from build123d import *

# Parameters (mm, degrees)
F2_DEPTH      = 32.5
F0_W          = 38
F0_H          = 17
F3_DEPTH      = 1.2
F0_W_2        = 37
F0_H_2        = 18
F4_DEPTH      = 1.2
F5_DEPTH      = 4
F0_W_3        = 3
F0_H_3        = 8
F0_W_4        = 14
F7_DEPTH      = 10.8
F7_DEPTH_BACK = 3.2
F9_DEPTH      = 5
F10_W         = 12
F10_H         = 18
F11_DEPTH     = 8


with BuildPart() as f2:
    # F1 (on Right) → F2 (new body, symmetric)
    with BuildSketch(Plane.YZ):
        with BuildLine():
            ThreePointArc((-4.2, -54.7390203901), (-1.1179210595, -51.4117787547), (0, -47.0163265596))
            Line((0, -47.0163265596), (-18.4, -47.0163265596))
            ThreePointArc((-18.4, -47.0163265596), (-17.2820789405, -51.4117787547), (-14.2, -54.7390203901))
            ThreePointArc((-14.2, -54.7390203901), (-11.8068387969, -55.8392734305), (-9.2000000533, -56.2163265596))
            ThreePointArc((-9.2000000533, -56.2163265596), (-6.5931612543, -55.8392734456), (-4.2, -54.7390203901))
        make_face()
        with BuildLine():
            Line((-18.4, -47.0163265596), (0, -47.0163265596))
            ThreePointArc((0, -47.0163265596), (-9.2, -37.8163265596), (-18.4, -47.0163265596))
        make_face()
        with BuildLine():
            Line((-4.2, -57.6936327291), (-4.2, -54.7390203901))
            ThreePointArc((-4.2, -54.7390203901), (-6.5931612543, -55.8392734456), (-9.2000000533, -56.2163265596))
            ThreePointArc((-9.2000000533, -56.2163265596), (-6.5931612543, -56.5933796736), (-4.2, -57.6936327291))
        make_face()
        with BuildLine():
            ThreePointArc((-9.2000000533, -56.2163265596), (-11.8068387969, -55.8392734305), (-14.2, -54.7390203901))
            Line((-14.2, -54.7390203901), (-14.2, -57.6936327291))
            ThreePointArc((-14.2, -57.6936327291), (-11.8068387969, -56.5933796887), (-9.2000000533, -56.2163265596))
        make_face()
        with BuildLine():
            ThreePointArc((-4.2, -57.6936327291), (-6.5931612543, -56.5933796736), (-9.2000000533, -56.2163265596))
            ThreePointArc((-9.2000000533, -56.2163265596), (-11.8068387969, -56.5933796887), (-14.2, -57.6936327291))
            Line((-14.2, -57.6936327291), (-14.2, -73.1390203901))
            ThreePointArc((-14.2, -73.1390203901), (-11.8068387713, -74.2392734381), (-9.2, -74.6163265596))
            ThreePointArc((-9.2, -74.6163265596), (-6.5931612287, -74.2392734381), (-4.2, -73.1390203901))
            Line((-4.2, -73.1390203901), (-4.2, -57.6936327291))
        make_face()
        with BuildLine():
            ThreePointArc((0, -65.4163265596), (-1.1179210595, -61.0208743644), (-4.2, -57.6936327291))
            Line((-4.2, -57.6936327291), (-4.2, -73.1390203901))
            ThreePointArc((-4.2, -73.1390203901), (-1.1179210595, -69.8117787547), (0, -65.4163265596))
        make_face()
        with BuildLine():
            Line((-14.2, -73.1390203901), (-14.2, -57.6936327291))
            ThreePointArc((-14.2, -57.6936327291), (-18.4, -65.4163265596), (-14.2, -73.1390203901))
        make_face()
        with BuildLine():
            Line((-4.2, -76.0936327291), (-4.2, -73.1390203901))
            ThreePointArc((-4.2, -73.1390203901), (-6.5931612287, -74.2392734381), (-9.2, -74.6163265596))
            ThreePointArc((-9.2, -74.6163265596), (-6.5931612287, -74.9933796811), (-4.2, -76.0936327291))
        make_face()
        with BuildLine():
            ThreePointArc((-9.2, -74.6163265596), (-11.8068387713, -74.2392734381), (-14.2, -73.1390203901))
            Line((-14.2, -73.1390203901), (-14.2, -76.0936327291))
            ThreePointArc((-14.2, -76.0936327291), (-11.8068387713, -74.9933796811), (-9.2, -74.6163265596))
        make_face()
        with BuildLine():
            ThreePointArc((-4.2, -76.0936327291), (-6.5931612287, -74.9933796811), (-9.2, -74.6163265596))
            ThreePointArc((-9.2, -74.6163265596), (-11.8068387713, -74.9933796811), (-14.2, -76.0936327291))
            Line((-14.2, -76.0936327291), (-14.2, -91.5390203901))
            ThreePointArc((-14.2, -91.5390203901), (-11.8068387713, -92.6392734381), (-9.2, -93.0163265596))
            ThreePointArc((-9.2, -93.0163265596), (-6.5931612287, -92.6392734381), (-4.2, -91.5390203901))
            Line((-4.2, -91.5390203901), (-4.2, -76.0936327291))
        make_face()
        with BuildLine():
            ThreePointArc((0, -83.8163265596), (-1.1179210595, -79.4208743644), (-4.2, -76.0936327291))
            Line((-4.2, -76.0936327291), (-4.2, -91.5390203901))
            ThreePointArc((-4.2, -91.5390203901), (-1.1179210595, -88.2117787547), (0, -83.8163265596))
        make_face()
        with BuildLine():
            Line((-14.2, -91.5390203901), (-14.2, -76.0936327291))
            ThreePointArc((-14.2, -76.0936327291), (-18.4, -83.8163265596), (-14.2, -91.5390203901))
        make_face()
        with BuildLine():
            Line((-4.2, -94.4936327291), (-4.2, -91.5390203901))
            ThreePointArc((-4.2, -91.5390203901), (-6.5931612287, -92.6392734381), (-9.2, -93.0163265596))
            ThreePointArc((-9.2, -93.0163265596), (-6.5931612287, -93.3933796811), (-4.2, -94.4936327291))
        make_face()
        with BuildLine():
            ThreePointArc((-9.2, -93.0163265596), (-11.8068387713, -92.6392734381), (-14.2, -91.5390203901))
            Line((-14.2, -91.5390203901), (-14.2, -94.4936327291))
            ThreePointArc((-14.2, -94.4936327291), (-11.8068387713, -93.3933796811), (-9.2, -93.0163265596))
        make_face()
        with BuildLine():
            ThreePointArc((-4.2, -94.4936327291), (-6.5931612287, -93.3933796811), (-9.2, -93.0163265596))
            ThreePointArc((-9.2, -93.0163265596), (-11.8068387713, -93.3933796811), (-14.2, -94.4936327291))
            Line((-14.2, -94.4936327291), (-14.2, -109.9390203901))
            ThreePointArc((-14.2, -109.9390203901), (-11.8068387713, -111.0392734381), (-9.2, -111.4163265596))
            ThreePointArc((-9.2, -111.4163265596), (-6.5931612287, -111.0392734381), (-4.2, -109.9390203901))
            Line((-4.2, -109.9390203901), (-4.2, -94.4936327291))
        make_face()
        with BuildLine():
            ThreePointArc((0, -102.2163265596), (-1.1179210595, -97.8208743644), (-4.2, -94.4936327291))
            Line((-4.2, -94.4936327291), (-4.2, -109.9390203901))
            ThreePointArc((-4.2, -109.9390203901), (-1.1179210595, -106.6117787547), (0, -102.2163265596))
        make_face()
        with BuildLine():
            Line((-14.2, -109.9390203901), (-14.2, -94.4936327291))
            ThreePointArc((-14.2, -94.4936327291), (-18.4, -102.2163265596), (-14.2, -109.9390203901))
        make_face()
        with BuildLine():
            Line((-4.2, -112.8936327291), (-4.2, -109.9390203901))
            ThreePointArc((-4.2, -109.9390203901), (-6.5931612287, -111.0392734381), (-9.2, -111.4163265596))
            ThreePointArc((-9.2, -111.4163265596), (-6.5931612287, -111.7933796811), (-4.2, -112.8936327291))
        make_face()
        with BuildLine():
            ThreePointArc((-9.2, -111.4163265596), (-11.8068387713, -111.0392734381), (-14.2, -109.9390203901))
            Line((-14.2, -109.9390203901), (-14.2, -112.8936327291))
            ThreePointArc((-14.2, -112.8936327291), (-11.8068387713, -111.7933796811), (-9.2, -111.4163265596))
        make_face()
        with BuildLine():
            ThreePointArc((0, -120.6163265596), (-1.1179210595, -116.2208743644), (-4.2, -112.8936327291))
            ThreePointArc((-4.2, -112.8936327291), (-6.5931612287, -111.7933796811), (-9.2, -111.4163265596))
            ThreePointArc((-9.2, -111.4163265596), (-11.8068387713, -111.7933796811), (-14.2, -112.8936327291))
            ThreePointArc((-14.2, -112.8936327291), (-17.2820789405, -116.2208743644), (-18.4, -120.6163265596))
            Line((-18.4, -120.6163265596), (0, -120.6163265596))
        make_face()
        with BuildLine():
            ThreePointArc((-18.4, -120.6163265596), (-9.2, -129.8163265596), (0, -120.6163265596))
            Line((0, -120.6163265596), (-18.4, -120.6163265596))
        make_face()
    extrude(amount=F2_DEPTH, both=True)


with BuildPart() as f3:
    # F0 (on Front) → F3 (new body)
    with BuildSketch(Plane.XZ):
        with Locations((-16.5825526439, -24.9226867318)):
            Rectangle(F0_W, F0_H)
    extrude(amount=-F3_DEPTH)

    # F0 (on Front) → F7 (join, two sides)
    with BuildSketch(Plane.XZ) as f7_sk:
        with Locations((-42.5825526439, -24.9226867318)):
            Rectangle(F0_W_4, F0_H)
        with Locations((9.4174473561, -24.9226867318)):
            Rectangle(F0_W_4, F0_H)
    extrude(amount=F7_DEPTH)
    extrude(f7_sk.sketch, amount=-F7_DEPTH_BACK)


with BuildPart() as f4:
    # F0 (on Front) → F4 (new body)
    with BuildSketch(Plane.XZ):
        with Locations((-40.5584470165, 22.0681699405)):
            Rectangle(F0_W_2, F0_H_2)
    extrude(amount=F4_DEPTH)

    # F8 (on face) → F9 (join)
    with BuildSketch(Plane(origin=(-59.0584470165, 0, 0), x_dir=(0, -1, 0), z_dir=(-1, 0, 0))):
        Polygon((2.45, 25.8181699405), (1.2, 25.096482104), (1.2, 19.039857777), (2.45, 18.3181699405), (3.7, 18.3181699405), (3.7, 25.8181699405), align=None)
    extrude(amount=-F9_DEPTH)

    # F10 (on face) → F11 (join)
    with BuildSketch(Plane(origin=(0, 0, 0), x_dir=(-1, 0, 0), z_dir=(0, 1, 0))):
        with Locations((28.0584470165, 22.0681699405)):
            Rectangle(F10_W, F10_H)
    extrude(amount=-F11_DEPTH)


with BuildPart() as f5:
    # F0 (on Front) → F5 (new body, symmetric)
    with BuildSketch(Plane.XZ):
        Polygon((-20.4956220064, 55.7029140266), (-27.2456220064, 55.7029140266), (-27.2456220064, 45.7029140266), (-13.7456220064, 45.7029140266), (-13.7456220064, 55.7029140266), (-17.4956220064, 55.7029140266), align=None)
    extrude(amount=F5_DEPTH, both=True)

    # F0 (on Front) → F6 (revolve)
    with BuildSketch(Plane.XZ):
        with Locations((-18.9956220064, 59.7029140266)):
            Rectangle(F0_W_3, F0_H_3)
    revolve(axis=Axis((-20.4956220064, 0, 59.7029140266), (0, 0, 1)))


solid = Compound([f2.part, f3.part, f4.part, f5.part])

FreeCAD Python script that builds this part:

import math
import FreeCAD as App
import Part
import Sketcher
Q = App.Units.Quantity

doc = App.newDocument("Part")
body = doc.addObject("PartDesign::Body", "Body")

sketch1 = doc.addObject("Sketcher::SketchObject", "Sketch")
body.addObject(sketch1)
sketch1.AttachmentSupport = (doc.YZ_Plane, [""])
sketch1.MapMode = "FlatFace"
sketch1.addGeometry(Part.ArcOfCircle(Part.Circle(App.Vector(-9.2, -47, 0), App.Vector(0, 0, 1), 9.2), math.radians(-57), math.radians(237)), False)
sketch1.addGeometry(Part.LineSegment(App.Vector(-14.2, -54.7, 0), App.Vector(-14.2, -57.7, 0)), False)
sketch1.addGeometry(Part.ArcOfCircle(Part.Circle(App.Vector(-9.2, -65.4, 0), App.Vector(0, 0, 1), 9.2), math.radians(123), math.radians(237)), False)
sketch1.addGeometry(Part.LineSegment(App.Vector(-14.2, -73.1, 0), App.Vector(-14.2, -76.1, 0)), False)
sketch1.addGeometry(Part.ArcOfCircle(Part.Circle(App.Vector(-9.2, -83.8, 0), App.Vector(0, 0, 1), 9.2), math.radians(123), math.radians(237)), False)
sketch1.addGeometry(Part.LineSegment(App.Vector(-14.2, -91.5, 0), App.Vector(-14.2, -94.5, 0)), False)
sketch1.addGeometry(Part.ArcOfCircle(Part.Circle(App.Vector(-9.2, -102.2, 0), App.Vector(0, 0, 1), 9.2), math.radians(123), math.radians(237)), False)
sketch1.addGeometry(Part.LineSegment(App.Vector(-14.2, -109.9, 0), App.Vector(-14.2, -112.9, 0)), False)
sketch1.addGeometry(Part.ArcOfCircle(Part.Circle(App.Vector(-9.2, -120.6, 0), App.Vector(0, 0, 1), 9.2), math.radians(123), math.radians(180)), False)
sketch1.addGeometry(Part.ArcOfCircle(Part.Circle(App.Vector(-9.2, -120.6, 0), App.Vector(0, 0, 1), 9.2), math.radians(180), math.radians(360)), False)
sketch1.addGeometry(Part.ArcOfCircle(Part.Circle(App.Vector(-9.2, -120.6, 0), App.Vector(0, 0, 1), 9.2), math.radians(0), math.radians(57)), False)
sketch1.addGeometry(Part.LineSegment(App.Vector(-4.2, -112.9, 0), App.Vector(-4.2, -109.9, 0)), False)
sketch1.addGeometry(Part.ArcOfCircle(Part.Circle(App.Vector(-9.2, -102.2, 0), App.Vector(0, 0, 1), 9.2), math.radians(-57), math.radians(0)), False)
sketch1.addGeometry(Part.ArcOfCircle(Part.Circle(App.Vector(-9.2, -102.2, 0), App.Vector(0, 0, 1), 9.2), math.radians(0), math.radians(57)), False)
sketch1.addGeometry(Part.LineSegment(App.Vector(-4.2, -94.5, 0), App.Vector(-4.2, -91.5, 0)), False)
sketch1.addGeometry(Part.ArcOfCircle(Part.Circle(App.Vector(-9.2, -83.8, 0), App.Vector(0, 0, 1), 9.2), math.radians(-57), math.radians(0)), False)
sketch1.addGeometry(Part.ArcOfCircle(Part.Circle(App.Vector(-9.2, -83.8, 0), App.Vector(0, 0, 1), 9.2), math.radians(0), math.radians(57)), False)
sketch1.addGeometry(Part.LineSegment(App.Vector(-4.2, -76.1, 0), App.Vector(-4.2, -73.1, 0)), False)
sketch1.addGeometry(Part.ArcOfCircle(Part.Circle(App.Vector(-9.2, -65.4, 0), App.Vector(0, 0, 1), 9.2), math.radians(-57), math.radians(0)), False)
sketch1.addGeometry(Part.ArcOfCircle(Part.Circle(App.Vector(-9.2, -65.4, 0), App.Vector(0, 0, 1), 9.2), math.radians(0), math.radians(57)), False)
sketch1.addGeometry(Part.LineSegment(App.Vector(-4.2, -57.7, 0), App.Vector(-4.2, -54.7, 0)), False)
sketch1.addConstraint(Sketcher.Constraint("Coincident", 0, 2, 1, 1))
sketch1.addConstraint(Sketcher.Constraint("Coincident", 1, 2, 2, 1))
sketch1.addConstraint(Sketcher.Constraint("Coincident", 2, 2, 3, 1))
sketch1.addConstraint(Sketcher.Constraint("Coincident", 3, 2, 4, 1))
sketch1.addConstraint(Sketcher.Constraint("Coincident", 4, 2, 5, 1))
sketch1.addConstraint(Sketcher.Constraint("Coincident", 5, 2, 6, 1))
sketch1.addConstraint(Sketcher.Constraint("Coincident", 6, 2, 7, 1))
sketch1.addConstraint(Sketcher.Constraint("Coincident", 7, 2, 8, 1))
sketch1.addConstraint(Sketcher.Constraint("Tangent", 8, 2, 9, 1))
sketch1.addConstraint(Sketcher.Constraint("Tangent", 9, 2, 10, 1))
sketch1.addConstraint(Sketcher.Constraint("Coincident", 10, 2, 11, 1))
sketch1.addConstraint(Sketcher.Constraint("Coincident", 11, 2, 12, 1))
sketch1.addConstraint(Sketcher.Constraint("Tangent", 12, 2, 13, 1))
sketch1.addConstraint(Sketcher.Constraint("Coincident", 13, 2, 14, 1))
sketch1.addConstraint(Sketcher.Constraint("Coincident", 14, 2, 15, 1))
sketch1.addConstraint(Sketcher.Constraint("Tangent", 15, 2, 16, 1))
sketch1.addConstraint(Sketcher.Constraint("Coincident", 16, 2, 17, 1))
sketch1.addConstraint(Sketcher.Constraint("Coincident", 17, 2, 18, 1))
sketch1.addConstraint(Sketcher.Constraint("Tangent", 18, 2, 19, 1))
sketch1.addConstraint(Sketcher.Constraint("Coincident", 19, 2, 20, 1))
sketch1.addConstraint(Sketcher.Constraint("Coincident", 20, 2, 0, 1))
sketch1.addConstraint(Sketcher.Constraint("Vertical", 1))
sketch1.addConstraint(Sketcher.Constraint("Vertical", 3))
sketch1.addConstraint(Sketcher.Constraint("Vertical", 5))
sketch1.addConstraint(Sketcher.Constraint("Vertical", 7))
sketch1.addConstraint(Sketcher.Constraint("Vertical", 11))
sketch1.addConstraint(Sketcher.Constraint("Vertical", 14))
sketch1.addConstraint(Sketcher.Constraint("Vertical", 17))
sketch1.addConstraint(Sketcher.Constraint("Vertical", 20))
sketch1.addConstraint(Sketcher.Constraint("Coincident", 12, 3, 6, 3))
sketch1.addConstraint(Sketcher.Constraint("Coincident", 15, 3, 4, 3))
sketch1.addConstraint(Sketcher.Constraint("Coincident", 18, 3, 2, 3))
sketch1.addConstraint(Sketcher.Constraint("Equal", 0, 2))
sketch1.addConstraint(Sketcher.Constraint("Equal", 2, 4))
sketch1.addConstraint(Sketcher.Constraint("Equal", 4, 6))
sketch1.addConstraint(Sketcher.Constraint("Equal", 6, 8))
sketch1.addConstraint(Sketcher.Constraint("Equal", 8, 9))
sketch1.addConstraint(Sketcher.Constraint("Equal", 9, 10))
sketch1.addConstraint(Sketcher.Constraint("Equal", 10, 12))
sketch1.addConstraint(Sketcher.Constraint("Equal", 12, 13))
sketch1.addConstraint(Sketcher.Constraint("Equal", 13, 15))
sketch1.addConstraint(Sketcher.Constraint("Equal", 15, 16))
sketch1.addConstraint(Sketcher.Constraint("Equal", 16, 18))
sketch1.addConstraint(Sketcher.Constraint("Equal", 18, 19))
sketch1.addConstraint(Sketcher.Constraint("PointOnObject", 9, 2, -2))
sketch1.addConstraint(Sketcher.Constraint("PointOnObject", 12, 2, -2))
sketch1.addConstraint(Sketcher.Constraint("PointOnObject", 15, 2, -2))
sketch1.addConstraint(Sketcher.Constraint("PointOnObject", 18, 2, -2))
sketch1.addConstraint(Sketcher.Constraint("Horizontal", 10, 3, 8, 2))
sketch1.addConstraint(Sketcher.Constraint("Horizontal", 8, 2, 9, 2))
sketch1.addConstraint(Sketcher.Constraint("Horizontal", 7, 2, 10, 2))
sketch1.addConstraint(Sketcher.Constraint("Horizontal", 13, 3, 12, 2))
sketch1.addConstraint(Sketcher.Constraint("Horizontal", 5, 2, 13, 2))
sketch1.addConstraint(Sketcher.Constraint("Horizontal", 16, 3, 15, 2))
sketch1.addConstraint(Sketcher.Constraint("Horizontal", 3, 2, 16, 2))
sketch1.addConstraint(Sketcher.Constraint("Horizontal", 19, 3, 18, 2))
sketch1.addConstraint(Sketcher.Constraint("Horizontal", 1, 2, 19, 2))
sketch1.addConstraint(Sketcher.Constraint("Horizontal", 0, 2, 20, 2))
sketch1.addConstraint(Sketcher.Constraint("Vertical", 1, 2, 2, 2))
sketch1.addConstraint(Sketcher.Constraint("Vertical", 3, 2, 4, 2))
sketch1.addConstraint(Sketcher.Constraint("Vertical", 5, 2, 6, 2))
sketch1.addConstraint(Sketcher.Constraint("Equal", 1, 3))
sketch1.addConstraint(Sketcher.Constraint("Equal", 3, 5))
sketch1.addConstraint(Sketcher.Constraint("Equal", 5, 7))
sketch1.addConstraint(Sketcher.Constraint("Radius", 0, 9.2))
sketch1.addConstraint(Sketcher.Constraint("DistanceX", 0, 2, 0, 3, 5.0))
sketch1.addConstraint(Sketcher.Constraint("DistanceY", 2, 3, 0, 3, 18.4))
sketch1.addConstraint(Sketcher.Constraint("DistanceY", 0, 2, -1, 1, 54.73902))
pad1 = doc.addObject("PartDesign::Pad", "Pad")
body.addObject(pad1)
pad1.Profile = sketch1
pad1.Length = 65
pad1.Midplane = True
body2 = doc.addObject("PartDesign::Body", "Body001")

sketch2 = doc.addObject("Sketcher::SketchObject", "Sketch001")
body2.addObject(sketch2)
sketch2.AttachmentSupport = (doc.getObject("XZ_Plane001"), [""])
sketch2.MapMode = "FlatFace"
sketch2.addGeometry(Part.LineSegment(App.Vector(-36, -16, 0), App.Vector(-36, -33, 0)), False)
sketch2.addGeometry(Part.LineSegment(App.Vector(-36, -33, 0), App.Vector(2, -33, 0)), False)
sketch2.addGeometry(Part.LineSegment(App.Vector(2, -33, 0), App.Vector(2, -16, 0)), False)
sketch2.addGeometry(Part.LineSegment(App.Vector(2, -16, 0), App.Vector(-36, -16, 0)), False)
sketch2.addConstraint(Sketcher.Constraint("Coincident", 0, 2, 1, 1))
sketch2.addConstraint(Sketcher.Constraint("Coincident", 1, 2, 2, 1))
sketch2.addConstraint(Sketcher.Constraint("Coincident", 2, 2, 3, 1))
sketch2.addConstraint(Sketcher.Constraint("Coincident", 3, 2, 0, 1))
sketch2.addConstraint(Sketcher.Constraint("Vertical", 0))
sketch2.addConstraint(Sketcher.Constraint("Horizontal", 1))
sketch2.addConstraint(Sketcher.Constraint("Vertical", 2))
sketch2.addConstraint(Sketcher.Constraint("Horizontal", 3))
sketch2.addConstraint(Sketcher.Constraint("DistanceX", 1, 1, 1, 2, 38.0))
sketch2.addConstraint(Sketcher.Constraint("DistanceY", 0, 2, 0, 1, 17.0))
sketch2.addConstraint(Sketcher.Constraint("DistanceX", 0, 2, -1, 1, 35.582553))
sketch2.addConstraint(Sketcher.Constraint("DistanceY", 0, 2, -1, 1, 33.422687))
pad2 = doc.addObject("PartDesign::Pad", "Pad001")
body2.addObject(pad2)
pad2.Profile = sketch2
pad2.Length = 1.2
pad2.Reversed = True

sketch3 = doc.addObject("Sketcher::SketchObject", "Sketch002")
body2.addObject(sketch3)
sketch3.AttachmentSupport = (doc.getObject("XZ_Plane001"), [""])
sketch3.MapMode = "FlatFace"
sketch3.addGeometry(Part.LineSegment(App.Vector(-50, -16, 0), App.Vector(-50, -33, 0)), False)
sketch3.addGeometry(Part.LineSegment(App.Vector(-50, -33, 0), App.Vector(-36, -33, 0)), False)
sketch3.addGeometry(Part.LineSegment(App.Vector(-36, -33, 0), App.Vector(-36, -16, 0)), False)
sketch3.addGeometry(Part.LineSegment(App.Vector(-36, -16, 0), App.Vector(-50, -16, 0)), False)
sketch3.addGeometry(Part.LineSegment(App.Vector(2, -16, 0), App.Vector(2, -33, 0)), False)
sketch3.addGeometry(Part.LineSegment(App.Vector(2, -33, 0), App.Vector(16, -33, 0)), False)
sketch3.addGeometry(Part.LineSegment(App.Vector(16, -33, 0), App.Vector(16, -16, 0)), False)
sketch3.addGeometry(Part.LineSegment(App.Vector(16, -16, 0), App.Vector(2, -16, 0)), False)
sketch3.addConstraint(Sketcher.Constraint("Coincident", 0, 2, 1, 1))
sketch3.addConstraint(Sketcher.Constraint("Coincident", 1, 2, 2, 1))
sketch3.addConstraint(Sketcher.Constraint("Coincident", 2, 2, 3, 1))
sketch3.addConstraint(Sketcher.Constraint("Coincident", 3, 2, 0, 1))
sketch3.addConstraint(Sketcher.Constraint("Coincident", 4, 2, 5, 1))
sketch3.addConstraint(Sketcher.Constraint("Coincident", 5, 2, 6, 1))
sketch3.addConstraint(Sketcher.Constraint("Coincident", 6, 2, 7, 1))
sketch3.addConstraint(Sketcher.Constraint("Coincident", 7, 2, 4, 1))
sketch3.addConstraint(Sketcher.Constraint("Vertical", 0))
sketch3.addConstraint(Sketcher.Constraint("Horizontal", 1))
sketch3.addConstraint(Sketcher.Constraint("Vertical", 2))
sketch3.addConstraint(Sketcher.Constraint("Horizontal", 3))
sketch3.addConstraint(Sketcher.Constraint("Vertical", 4))
sketch3.addConstraint(Sketcher.Constraint("Horizontal", 5))
sketch3.addConstraint(Sketcher.Constraint("Vertical", 6))
sketch3.addConstraint(Sketcher.Constraint("Horizontal", 7))
sketch3.addConstraint(Sketcher.Constraint("Horizontal", 1, 2, 4, 2))
sketch3.addConstraint(Sketcher.Constraint("Horizontal", 3, 2, 6, 2))
sketch3.addConstraint(Sketcher.Constraint("Equal", 3, 5))
sketch3.addConstraint(Sketcher.Constraint("DistanceX", 1, 1, 1, 2, 14.0))
sketch3.addConstraint(Sketcher.Constraint("DistanceY", 0, 2, 0, 1, 17.0))
sketch3.addConstraint(Sketcher.Constraint("DistanceX", 1, 2, 4, 2, 38.0))
sketch3.addConstraint(Sketcher.Constraint("DistanceX", 0, 2, -1, 1, 49.582553))
sketch3.addConstraint(Sketcher.Constraint("DistanceY", 0, 2, -1, 1, 33.422687))
pad3 = doc.addObject("PartDesign::Pad", "Pad002")
body2.addObject(pad3)
pad3.Profile = sketch3
pad3.Type = "TwoLengths"
pad3.Length = 10.8
pad3.Length2 = 3.2
body3 = doc.addObject("PartDesign::Body", "Body002")

sketch4 = doc.addObject("Sketcher::SketchObject", "Sketch003")
body3.addObject(sketch4)
sketch4.AttachmentSupport = (doc.getObject("XZ_Plane002"), [""])
sketch4.MapMode = "FlatFace"
sketch4.addGeometry(Part.LineSegment(App.Vector(-59, 31, 0), App.Vector(-59, 13, 0)), False)
sketch4.addGeometry(Part.LineSegment(App.Vector(-59, 13, 0), App.Vector(-22, 13, 0)), False)
sketch4.addGeometry(Part.LineSegment(App.Vector(-22, 13, 0), App.Vector(-22, 31, 0)), False)
sketch4.addGeometry(Part.LineSegment(App.Vector(-22, 31, 0), App.Vector(-59, 31, 0)), False)
sketch4.addConstraint(Sketcher.Constraint("Coincident", 0, 2, 1, 1))
sketch4.addConstraint(Sketcher.Constraint("Coincident", 1, 2, 2, 1))
sketch4.addConstraint(Sketcher.Constraint("Coincident", 2, 2, 3, 1))
sketch4.addConstraint(Sketcher.Constraint("Coincident", 3, 2, 0, 1))
sketch4.addConstraint(Sketcher.Constraint("Vertical", 0))
sketch4.addConstraint(Sketcher.Constraint("Horizontal", 1))
sketch4.addConstraint(Sketcher.Constraint("Vertical", 2))
sketch4.addConstraint(Sketcher.Constraint("Horizontal", 3))
sketch4.addConstraint(Sketcher.Constraint("DistanceX", 1, 1, 1, 2, 37.0))
sketch4.addConstraint(Sketcher.Constraint("DistanceY", 0, 2, 0, 1, 18.0))
sketch4.addConstraint(Sketcher.Constraint("DistanceY", -1, 1, 0, 2, 13.06817))
sketch4.addConstraint(Sketcher.Constraint("DistanceX", 0, 2, -1, 1, 59.058447))
pad4 = doc.addObject("PartDesign::Pad", "Pad003")
body3.addObject(pad4)
pad4.Profile = sketch4
pad4.Length = 1.2

sketch5 = doc.addObject("Sketcher::SketchObject", "Sketch004")
body3.addObject(sketch5)
sketch5.AttachmentSupport = (doc.getObject("YZ_Plane002"), [""])
sketch5.MapMode = "FlatFace"
sketch5.AttachmentOffset = App.Placement(App.Vector(0, 0, -59.058447), App.Rotation())
sketch5.addGeometry(Part.LineSegment(App.Vector(-2.5, 25.8, 0), App.Vector(-1.2, 25.1, 0)), False)
sketch5.addGeometry(Part.LineSegment(App.Vector(-1.2, 25.1, 0), App.Vector(-1.2, 19, 0)), False)
sketch5.addGeometry(Part.LineSegment(App.Vector(-1.2, 19, 0), App.Vector(-2.5, 18.3, 0)), False)
sketch5.addGeometry(Part.LineSegment(App.Vector(-2.5, 18.3, 0), App.Vector(-3.7, 18.3, 0)), False)
sketch5.addGeometry(Part.LineSegment(App.Vector(-3.7, 18.3, 0), App.Vector(-3.7, 25.8, 0)), False)
sketch5.addGeometry(Part.LineSegment(App.Vector(-3.7, 25.8, 0), App.Vector(-2.5, 25.8, 0)), False)
sketch5.addConstraint(Sketcher.Constraint("Coincident", 0, 2, 1, 1))
sketch5.addConstraint(Sketcher.Constraint("Coincident", 1, 2, 2, 1))
sketch5.addConstraint(Sketcher.Constraint("Coincident", 2, 2, 3, 1))
sketch5.addConstraint(Sketcher.Constraint("Coincident", 3, 2, 4, 1))
sketch5.addConstraint(Sketcher.Constraint("Coincident", 4, 2, 5, 1))
sketch5.addConstraint(Sketcher.Constraint("Coincident", 5, 2, 0, 1))
sketch5.addConstraint(Sketcher.Constraint("Vertical", 1))
sketch5.addConstraint(Sketcher.Constraint("Horizontal", 3))
sketch5.addConstraint(Sketcher.Constraint("Vertical", 4))
sketch5.addConstraint(Sketcher.Constraint("Horizontal", 5))
sketch5.addConstraint(Sketcher.Constraint("Vertical", 2, 2, 5, 2))
sketch5.addConstraint(Sketcher.Constraint("Equal", 0, 2))
sketch5.addConstraint(Sketcher.Constraint("Angle", 0, Q("-30 deg")))
sketch5.addConstraint(Sketcher.Constraint("DistanceY", 4, 1, 4, 2, 7.5))
sketch5.addConstraint(Sketcher.Constraint("DistanceX", 3, 2, 3, 1, 1.25))
sketch5.addConstraint(Sketcher.Constraint("DistanceX", 0, 2, -1, 1, 1.2))
sketch5.addConstraint(Sketcher.Constraint("DistanceX", 3, 2, -1, 1, 3.7))
sketch5.addConstraint(Sketcher.Constraint("DistanceY", -1, 1, 2, 2, 18.31817))
pad5 = doc.addObject("PartDesign::Pad", "Pad004")
body3.addObject(pad5)
pad5.Profile = sketch5
pad5.Length = 5

sketch6 = doc.addObject("Sketcher::SketchObject", "Sketch005")
body3.addObject(sketch6)
sketch6.AttachmentSupport = (doc.getObject("XZ_Plane002"), [""])
sketch6.MapMode = "FlatFace"
sketch6.addGeometry(Part.LineSegment(App.Vector(-22, 31, 0), App.Vector(-22, 13, 0)), False)
sketch6.addGeometry(Part.LineSegment(App.Vector(-22, 13, 0), App.Vector(-34, 13, 0)), False)
sketch6.addGeometry(Part.LineSegment(App.Vector(-34, 13, 0), App.Vector(-34, 31, 0)), False)
sketch6.addGeometry(Part.LineSegment(App.Vector(-34, 31, 0), App.Vector(-22, 31, 0)), False)
sketch6.addConstraint(Sketcher.Constraint("Coincident", 0, 2, 1, 1))
sketch6.addConstraint(Sketcher.Constraint("Coincident", 1, 2, 2, 1))
sketch6.addConstraint(Sketcher.Constraint("Coincident", 2, 2, 3, 1))
sketch6.addConstraint(Sketcher.Constraint("Coincident", 3, 2, 0, 1))
sketch6.addConstraint(Sketcher.Constraint("Vertical", 0))
sketch6.addConstraint(Sketcher.Constraint("Horizontal", 1))
sketch6.addConstraint(Sketcher.Constraint("Vertical", 2))
sketch6.addConstraint(Sketcher.Constraint("Horizontal", 3))
sketch6.addConstraint(Sketcher.Constraint("DistanceX", 1, 2, 1, 1, 12.0))
sketch6.addConstraint(Sketcher.Constraint("DistanceY", 0, 2, 0, 1, 18.0))
sketch6.addConstraint(Sketcher.Constraint("DistanceY", -1, 1, 0, 2, 13.06817))
sketch6.addConstraint(Sketcher.Constraint("DistanceX", 0, 2, -1, 1, 22.058447))
pad6 = doc.addObject("PartDesign::Pad", "Pad005")
body3.addObject(pad6)
pad6.Profile = sketch6
pad6.Length = 8
body4 = doc.addObject("PartDesign::Body", "Body003")

sketch7 = doc.addObject("Sketcher::SketchObject", "Sketch006")
body4.addObject(sketch7)
sketch7.AttachmentSupport = (doc.getObject("XZ_Plane003"), [""])
sketch7.MapMode = "FlatFace"
sketch7.addGeometry(Part.LineSegment(App.Vector(-27, 56, 0), App.Vector(-27, 46, 0)), False)
sketch7.addGeometry(Part.LineSegment(App.Vector(-27, 46, 0), App.Vector(-14, 46, 0)), False)
sketch7.addGeometry(Part.LineSegment(App.Vector(-14, 46, 0), App.Vector(-14, 56, 0)), False)
sketch7.addGeometry(Part.LineSegment(App.Vector(-14, 56, 0), App.Vector(-27, 56, 0)), False)
sketch7.addConstraint(Sketcher.Constraint("Coincident", 0, 2, 1, 1))
sketch7.addConstraint(Sketcher.Constraint("Coincident", 1, 2, 2, 1))
sketch7.addConstraint(Sketcher.Constraint("Coincident", 2, 2, 3, 1))
sketch7.addConstraint(Sketcher.Constraint("Coincident", 3, 2, 0, 1))
sketch7.addConstraint(Sketcher.Constraint("Vertical", 0))
sketch7.addConstraint(Sketcher.Constraint("Horizontal", 1))
sketch7.addConstraint(Sketcher.Constraint("Vertical", 2))
sketch7.addConstraint(Sketcher.Constraint("Horizontal", 3))
sketch7.addConstraint(Sketcher.Constraint("DistanceY", 0, 2, 0, 1, 10.0))
sketch7.addConstraint(Sketcher.Constraint("DistanceX", 1, 1, 1, 2, 13.5))
sketch7.addConstraint(Sketcher.Constraint("DistanceX", 0, 2, -1, 1, 27.245622))
sketch7.addConstraint(Sketcher.Constraint("DistanceY", -1, 1, 0, 2, 45.702914))
pad7 = doc.addObject("PartDesign::Pad", "Pad006")
body4.addObject(pad7)
pad7.Profile = sketch7
pad7.Length = 8
pad7.Midplane = True

sketch8 = doc.addObject("Sketcher::SketchObject", "Sketch007")
body4.addObject(sketch8)
sketch8.AttachmentSupport = (doc.getObject("XZ_Plane003"), [""])
sketch8.MapMode = "FlatFace"
sketch8.addGeometry(Part.LineSegment(App.Vector(-20.5, 63.7, 0), App.Vector(-20.5, 55.7, 0)), False)
sketch8.addGeometry(Part.LineSegment(App.Vector(-20.5, 55.7, 0), App.Vector(-17.5, 55.7, 0)), False)
sketch8.addGeometry(Part.LineSegment(App.Vector(-17.5, 55.7, 0), App.Vector(-17.5, 63.7, 0)), False)
sketch8.addGeometry(Part.LineSegment(App.Vector(-17.5, 63.7, 0), App.Vector(-20.5, 63.7, 0)), False)
sketch8.addGeometry(Part.LineSegment(App.Vector(-20.5, 55.7, 0), App.Vector(-20.5, 63.7, 0)), True)
sketch8.addConstraint(Sketcher.Constraint("Coincident", 0, 2, 1, 1))
sketch8.addConstraint(Sketcher.Constraint("Coincident", 1, 2, 2, 1))
sketch8.addConstraint(Sketcher.Constraint("Coincident", 2, 2, 3, 1))
sketch8.addConstraint(Sketcher.Constraint("Coincident", 3, 2, 0, 1))
sketch8.addConstraint(Sketcher.Constraint("Vertical", 0))
sketch8.addConstraint(Sketcher.Constraint("Horizontal", 1))
sketch8.addConstraint(Sketcher.Constraint("Vertical", 2))
sketch8.addConstraint(Sketcher.Constraint("Horizontal", 3))
sketch8.addConstraint(Sketcher.Constraint("Vertical", 4))
sketch8.addConstraint(Sketcher.Constraint("Coincident", 4, 1, 0, 2))
sketch8.addConstraint(Sketcher.Constraint("Horizontal", 2, 2, 4, 2))
sketch8.addConstraint(Sketcher.Constraint("DistanceX", 1, 1, 1, 2, 3.0))
sketch8.addConstraint(Sketcher.Constraint("DistanceY", 0, 2, 0, 1, 8.0))
sketch8.addConstraint(Sketcher.Constraint("DistanceX", 0, 2, -1, 1, 20.495622))
sketch8.addConstraint(Sketcher.Constraint("DistanceY", -1, 1, 0, 2, 55.702914))
revolution = doc.addObject("PartDesign::Revolution", "Revolution")
body4.addObject(revolution)
revolution.Profile = sketch8
revolution.ReferenceAxis = (sketch8, ["Axis0"])
revolution.Angle = 360

doc.recompute()
